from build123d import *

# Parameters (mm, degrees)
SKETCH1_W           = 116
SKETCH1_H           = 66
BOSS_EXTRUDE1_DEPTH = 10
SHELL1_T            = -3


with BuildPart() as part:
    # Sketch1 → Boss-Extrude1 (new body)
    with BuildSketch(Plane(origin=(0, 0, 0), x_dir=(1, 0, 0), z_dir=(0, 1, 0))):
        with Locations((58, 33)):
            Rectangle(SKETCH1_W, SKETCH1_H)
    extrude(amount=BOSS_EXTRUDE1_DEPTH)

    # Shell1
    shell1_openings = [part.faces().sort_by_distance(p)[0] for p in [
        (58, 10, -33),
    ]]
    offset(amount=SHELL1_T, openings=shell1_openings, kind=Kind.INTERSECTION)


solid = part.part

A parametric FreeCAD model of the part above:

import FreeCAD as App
import Part
import Sketcher

V = App.Vector


def faces_at(feature, points):
    """Names of the faces that lie closest to the given points."""
    faces = feature.Shape.Faces
    near = lambda p: min(range(len(faces)), key=lambda i: faces[i].distToShape(Part.Vertex(*p))[0])
    return sorted({f"Face{near(p) + 1}" for p in points})


def add_polygon(sketch, points):
    """Adds a closed chain of lines whose ends are joined by coincident constraints."""
    first, n = sketch.GeometryCount, len(points)
    for a, b in zip(points, points[1:] + points[:1]):
        sketch.addGeometry(Part.LineSegment(App.Vector(*a, 0), App.Vector(*b, 0)), False)
    for i in range(n):
        sketch.addConstraint(Sketcher.Constraint("Coincident", first + i, 2, first + (i + 1) % n, 1))

doc = App.newDocument("Part")
body = doc.addObject("PartDesign::Body", "Body")

# Sketch on XZ plane
sketch1 = body.newObject("Sketcher::SketchObject", "Sketch")
sketch1.AttachmentSupport = (doc.getObject("XZ_Plane"), [""])
sketch1.MapMode = "FlatFace"
add_polygon(sketch1, [(0, -66), (0, 0), (116, 0), (116, -66)])  # lines 0-3
sketch1.addConstraint([
    Sketcher.Constraint("Vertical", 0),
    Sketcher.Constraint("Horizontal", 1),
    Sketcher.Constraint("Vertical", 2),
    Sketcher.Constraint("Horizontal", 3),
    Sketcher.Constraint("Coincident", 0, 2, -1, 1),
    Sketcher.Constraint("DistanceX", 1, 1, 1, 2, 116.0),
    Sketcher.Constraint("DistanceY", 0, 1, 0, 2, 66.0),
])
pad1 = body.newObject("PartDesign::Pad", "Pad")
pad1.Profile = sketch1
pad1.Length = 10
pad1.Reversed = True
doc.recompute()

thickness = body.newObject("PartDesign::Thickness", "Thickness")
thickness.Base = (pad1, faces_at(pad1, [(58, 10, -33)]))
thickness.Value = 3
thickness.Reversed = True
thickness.Join = "Intersection"

doc.recompute()
